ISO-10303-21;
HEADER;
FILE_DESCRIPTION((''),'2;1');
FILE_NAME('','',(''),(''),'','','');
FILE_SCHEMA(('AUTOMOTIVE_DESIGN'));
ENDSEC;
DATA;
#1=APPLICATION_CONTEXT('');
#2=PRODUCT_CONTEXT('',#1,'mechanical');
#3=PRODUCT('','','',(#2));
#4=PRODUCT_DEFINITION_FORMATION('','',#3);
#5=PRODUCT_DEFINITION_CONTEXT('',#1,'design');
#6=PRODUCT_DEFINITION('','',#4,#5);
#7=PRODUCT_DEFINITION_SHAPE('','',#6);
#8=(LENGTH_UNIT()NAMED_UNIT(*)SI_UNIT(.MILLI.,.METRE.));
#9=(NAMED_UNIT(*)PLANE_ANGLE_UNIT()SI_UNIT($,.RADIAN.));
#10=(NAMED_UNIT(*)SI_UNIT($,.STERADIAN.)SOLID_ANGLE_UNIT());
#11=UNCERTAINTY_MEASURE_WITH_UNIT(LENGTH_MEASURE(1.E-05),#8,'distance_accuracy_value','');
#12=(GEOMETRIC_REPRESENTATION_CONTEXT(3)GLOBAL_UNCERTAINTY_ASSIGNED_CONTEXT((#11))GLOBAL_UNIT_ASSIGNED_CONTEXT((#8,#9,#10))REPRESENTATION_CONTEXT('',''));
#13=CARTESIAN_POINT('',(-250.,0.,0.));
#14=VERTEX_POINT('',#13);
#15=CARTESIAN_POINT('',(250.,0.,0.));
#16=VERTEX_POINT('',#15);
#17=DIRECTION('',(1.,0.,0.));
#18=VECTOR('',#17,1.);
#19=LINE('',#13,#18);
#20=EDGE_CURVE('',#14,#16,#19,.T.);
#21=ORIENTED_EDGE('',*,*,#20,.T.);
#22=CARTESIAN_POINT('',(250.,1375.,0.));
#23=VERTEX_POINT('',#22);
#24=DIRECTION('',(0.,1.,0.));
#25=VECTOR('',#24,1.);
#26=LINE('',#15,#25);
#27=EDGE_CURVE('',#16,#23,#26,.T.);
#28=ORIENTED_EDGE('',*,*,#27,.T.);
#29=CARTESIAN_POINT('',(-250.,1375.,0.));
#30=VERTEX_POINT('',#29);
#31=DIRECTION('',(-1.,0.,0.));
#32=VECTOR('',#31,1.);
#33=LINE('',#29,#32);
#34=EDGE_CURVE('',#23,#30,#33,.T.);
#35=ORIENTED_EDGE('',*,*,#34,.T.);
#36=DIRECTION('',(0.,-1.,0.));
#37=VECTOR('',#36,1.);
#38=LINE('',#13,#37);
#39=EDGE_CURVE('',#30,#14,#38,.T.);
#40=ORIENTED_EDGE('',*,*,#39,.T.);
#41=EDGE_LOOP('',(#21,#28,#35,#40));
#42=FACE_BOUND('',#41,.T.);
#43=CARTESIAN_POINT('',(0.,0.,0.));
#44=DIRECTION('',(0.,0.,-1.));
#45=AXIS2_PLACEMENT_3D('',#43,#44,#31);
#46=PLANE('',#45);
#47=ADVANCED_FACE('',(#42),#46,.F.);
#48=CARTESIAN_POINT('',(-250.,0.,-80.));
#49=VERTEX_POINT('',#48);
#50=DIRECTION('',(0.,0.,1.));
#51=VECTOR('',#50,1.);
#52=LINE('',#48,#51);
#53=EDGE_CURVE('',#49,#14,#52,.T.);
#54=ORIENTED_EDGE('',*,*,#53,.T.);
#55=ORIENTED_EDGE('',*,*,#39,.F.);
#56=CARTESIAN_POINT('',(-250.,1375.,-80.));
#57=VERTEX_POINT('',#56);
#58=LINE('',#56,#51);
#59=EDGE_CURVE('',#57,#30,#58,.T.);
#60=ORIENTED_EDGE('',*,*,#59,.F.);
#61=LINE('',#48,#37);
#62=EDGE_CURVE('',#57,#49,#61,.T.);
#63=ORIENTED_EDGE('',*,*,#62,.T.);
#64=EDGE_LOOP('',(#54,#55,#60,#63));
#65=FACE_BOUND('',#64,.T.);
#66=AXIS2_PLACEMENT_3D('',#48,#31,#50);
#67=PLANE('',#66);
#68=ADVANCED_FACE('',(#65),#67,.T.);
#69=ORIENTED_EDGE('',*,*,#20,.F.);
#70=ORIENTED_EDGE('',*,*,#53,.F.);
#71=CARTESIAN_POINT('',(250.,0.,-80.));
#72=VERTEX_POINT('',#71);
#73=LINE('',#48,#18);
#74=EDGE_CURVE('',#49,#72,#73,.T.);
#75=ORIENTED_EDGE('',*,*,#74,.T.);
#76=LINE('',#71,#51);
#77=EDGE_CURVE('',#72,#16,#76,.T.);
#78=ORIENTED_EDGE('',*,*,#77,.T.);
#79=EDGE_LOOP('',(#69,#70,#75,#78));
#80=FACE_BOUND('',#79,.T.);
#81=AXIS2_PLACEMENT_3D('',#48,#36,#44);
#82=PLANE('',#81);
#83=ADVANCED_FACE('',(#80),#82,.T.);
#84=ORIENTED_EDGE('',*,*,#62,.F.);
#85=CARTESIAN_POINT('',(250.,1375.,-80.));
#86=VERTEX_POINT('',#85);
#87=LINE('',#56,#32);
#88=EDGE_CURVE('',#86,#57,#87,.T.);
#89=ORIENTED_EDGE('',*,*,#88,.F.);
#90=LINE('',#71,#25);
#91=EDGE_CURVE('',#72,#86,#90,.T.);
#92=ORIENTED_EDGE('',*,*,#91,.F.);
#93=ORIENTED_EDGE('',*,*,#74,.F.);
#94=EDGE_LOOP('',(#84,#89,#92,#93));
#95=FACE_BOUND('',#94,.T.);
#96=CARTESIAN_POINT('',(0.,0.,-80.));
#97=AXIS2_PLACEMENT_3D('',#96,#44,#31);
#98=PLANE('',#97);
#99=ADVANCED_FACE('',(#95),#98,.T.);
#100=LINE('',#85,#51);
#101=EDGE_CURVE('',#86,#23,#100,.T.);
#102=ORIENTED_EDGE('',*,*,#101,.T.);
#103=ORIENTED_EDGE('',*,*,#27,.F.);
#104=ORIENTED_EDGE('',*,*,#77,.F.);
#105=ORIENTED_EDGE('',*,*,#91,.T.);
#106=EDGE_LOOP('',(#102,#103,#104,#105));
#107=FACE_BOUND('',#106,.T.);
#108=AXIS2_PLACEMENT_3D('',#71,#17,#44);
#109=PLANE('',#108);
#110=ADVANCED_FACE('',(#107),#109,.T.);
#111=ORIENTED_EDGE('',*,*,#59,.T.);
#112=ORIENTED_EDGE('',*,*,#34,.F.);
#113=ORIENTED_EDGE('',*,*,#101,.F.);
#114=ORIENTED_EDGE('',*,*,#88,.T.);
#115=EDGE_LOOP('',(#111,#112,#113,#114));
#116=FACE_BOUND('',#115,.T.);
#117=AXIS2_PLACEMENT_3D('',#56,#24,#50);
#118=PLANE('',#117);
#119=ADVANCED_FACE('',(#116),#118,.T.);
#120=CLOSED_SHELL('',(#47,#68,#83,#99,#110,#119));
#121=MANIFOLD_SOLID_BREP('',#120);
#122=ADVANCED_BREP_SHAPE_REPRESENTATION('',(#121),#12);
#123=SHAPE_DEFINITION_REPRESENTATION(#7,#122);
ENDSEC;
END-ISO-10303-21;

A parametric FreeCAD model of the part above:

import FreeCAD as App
import Part
import Sketcher

V = App.Vector


def add_polygon(sketch, points):
    """Adds a closed chain of lines whose ends are joined by coincident constraints."""
    first, n = sketch.GeometryCount, len(points)
    for a, b in zip(points, points[1:] + points[:1]):
        sketch.addGeometry(Part.LineSegment(App.Vector(*a, 0), App.Vector(*b, 0)), False)
    for i in range(n):
        sketch.addConstraint(Sketcher.Constraint("Coincident", first + i, 2, first + (i + 1) % n, 1))

doc = App.newDocument("Part")
body = doc.addObject("PartDesign::Body", "Body")

# Sketch on XY plane
sketch1 = body.newObject("Sketcher::SketchObject", "Sketch")
sketch1.AttachmentSupport = (doc.getObject("XY_Plane"), [""])
sketch1.MapMode = "FlatFace"
add_polygon(sketch1, [(-250, 1375), (-250, 0), (250, 0), (250, 1375)])  # lines 0-3
sketch1.addConstraint([
    Sketcher.Constraint("Vertical", 0),
    Sketcher.Constraint("Horizontal", 1),
    Sketcher.Constraint("Vertical", 2),
    Sketcher.Constraint("Horizontal", 3),
    Sketcher.Constraint("Symmetric", 0, 2, 1, 2, -1, 1),
    Sketcher.Constraint("DistanceX", 1, 1, 1, 2, 500.0),
    Sketcher.Constraint("DistanceY", 0, 2, 0, 1, 1375.0),
])
pad1 = body.newObject("PartDesign::Pad", "Pad")
pad1.Profile = sketch1
pad1.Length = 80
pad1.Reversed = True

doc.recompute()
